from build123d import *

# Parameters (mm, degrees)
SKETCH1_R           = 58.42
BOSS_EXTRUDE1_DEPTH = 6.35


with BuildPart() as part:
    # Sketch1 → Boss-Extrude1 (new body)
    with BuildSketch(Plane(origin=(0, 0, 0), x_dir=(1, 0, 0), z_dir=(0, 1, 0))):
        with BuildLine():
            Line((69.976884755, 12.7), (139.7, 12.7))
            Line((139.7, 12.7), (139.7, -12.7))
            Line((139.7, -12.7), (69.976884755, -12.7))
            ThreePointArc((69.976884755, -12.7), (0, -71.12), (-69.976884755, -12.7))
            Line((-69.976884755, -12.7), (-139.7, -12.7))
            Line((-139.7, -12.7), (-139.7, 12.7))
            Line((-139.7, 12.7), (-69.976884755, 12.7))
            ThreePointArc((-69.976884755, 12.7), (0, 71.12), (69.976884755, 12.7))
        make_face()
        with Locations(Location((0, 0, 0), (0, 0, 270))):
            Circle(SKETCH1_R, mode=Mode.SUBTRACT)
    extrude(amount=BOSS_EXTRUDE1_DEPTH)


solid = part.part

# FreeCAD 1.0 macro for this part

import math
import FreeCAD as App
import Part
import Sketcher
from FreeCAD import Vector
Q = App.Units.Quantity

doc = App.newDocument("Part")
body = doc.addObject("PartDesign::Body", "Body")

sketch1 = doc.addObject("Sketcher::SketchObject", "Sketch")
body.addObject(sketch1)
sketch1.AttachmentSupport = (doc.XZ_Plane, [""])
sketch1.MapMode = "FlatFace"
sketch1.addGeometry([
    Part.LineSegment(Vector(140, -13, 0), Vector(70, -13, 0)),
    Part.ArcOfCircle(Part.Circle(Vector(0, 0, 0), Vector(0, 0, 1), 71), math.radians(-170), math.radians(-10)),
    Part.LineSegment(Vector(-70, -13, 0), Vector(-140, -13, 0)),
    Part.LineSegment(Vector(-140, -13, 0), Vector(-140, 13, 0)),
    Part.LineSegment(Vector(-140, 13, 0), Vector(-70, 13, 0)),
    Part.ArcOfCircle(Part.Circle(Vector(0, 0, 0), Vector(0, 0, 1), 71), math.radians(10), math.radians(170)),
    Part.LineSegment(Vector(70, 13, 0), Vector(140, 13, 0)),
    Part.LineSegment(Vector(140, 13, 0), Vector(140, -13, 0)),
    Part.Circle(Vector(0, 0, 0), Vector(0, 0, 1), 58),
], False)
sketch1.addConstraint([
    Sketcher.Constraint("Coincident", 0, 2, 1, 2),
    Sketcher.Constraint("Coincident", 1, 1, 2, 1),
    Sketcher.Constraint("Coincident", 2, 2, 3, 1),
    Sketcher.Constraint("Coincident", 3, 2, 4, 1),
    Sketcher.Constraint("Coincident", 4, 2, 5, 2),
    Sketcher.Constraint("Coincident", 5, 1, 6, 1),
    Sketcher.Constraint("Coincident", 6, 2, 7, 1),
    Sketcher.Constraint("Coincident", 7, 2, 0, 1),
    Sketcher.Constraint("Horizontal", 0),
    Sketcher.Constraint("Horizontal", 2),
    Sketcher.Constraint("Vertical", 3),
    Sketcher.Constraint("Horizontal", 4),
    Sketcher.Constraint("Horizontal", 6),
    Sketcher.Constraint("Vertical", 7),
    Sketcher.Constraint("Coincident", 1, 3, -1, 1),
    Sketcher.Constraint("Coincident", 5, 3, -1, 1),
    Sketcher.Constraint("Coincident", 8, 3, -1, 1),
    Sketcher.Constraint("Equal", 1, 5),
    Sketcher.Constraint("Symmetric", 2, 2, 6, 2, -1, 1),
    Sketcher.Constraint("Horizontal", 0, 2, 1, 1),
    Sketcher.Constraint("Horizontal", 4, 2, 5, 1),
    Sketcher.Constraint("Diameter", 8, Q("4.6 in")),
    Sketcher.Constraint("Radius", 1, Q("2.8 in")),
    Sketcher.Constraint("DistanceY", 3, 1, 3, 2, Q("1 in")),
    Sketcher.Constraint("DistanceX", 2, 2, -1, 1, Q("5.5 in")),
])
pad1 = doc.addObject("PartDesign::Pad", "Pad")
body.addObject(pad1)
pad1.Profile = sketch1
pad1.Length = Q("0.25 in")
pad1.Reversed = True

doc.recompute()
